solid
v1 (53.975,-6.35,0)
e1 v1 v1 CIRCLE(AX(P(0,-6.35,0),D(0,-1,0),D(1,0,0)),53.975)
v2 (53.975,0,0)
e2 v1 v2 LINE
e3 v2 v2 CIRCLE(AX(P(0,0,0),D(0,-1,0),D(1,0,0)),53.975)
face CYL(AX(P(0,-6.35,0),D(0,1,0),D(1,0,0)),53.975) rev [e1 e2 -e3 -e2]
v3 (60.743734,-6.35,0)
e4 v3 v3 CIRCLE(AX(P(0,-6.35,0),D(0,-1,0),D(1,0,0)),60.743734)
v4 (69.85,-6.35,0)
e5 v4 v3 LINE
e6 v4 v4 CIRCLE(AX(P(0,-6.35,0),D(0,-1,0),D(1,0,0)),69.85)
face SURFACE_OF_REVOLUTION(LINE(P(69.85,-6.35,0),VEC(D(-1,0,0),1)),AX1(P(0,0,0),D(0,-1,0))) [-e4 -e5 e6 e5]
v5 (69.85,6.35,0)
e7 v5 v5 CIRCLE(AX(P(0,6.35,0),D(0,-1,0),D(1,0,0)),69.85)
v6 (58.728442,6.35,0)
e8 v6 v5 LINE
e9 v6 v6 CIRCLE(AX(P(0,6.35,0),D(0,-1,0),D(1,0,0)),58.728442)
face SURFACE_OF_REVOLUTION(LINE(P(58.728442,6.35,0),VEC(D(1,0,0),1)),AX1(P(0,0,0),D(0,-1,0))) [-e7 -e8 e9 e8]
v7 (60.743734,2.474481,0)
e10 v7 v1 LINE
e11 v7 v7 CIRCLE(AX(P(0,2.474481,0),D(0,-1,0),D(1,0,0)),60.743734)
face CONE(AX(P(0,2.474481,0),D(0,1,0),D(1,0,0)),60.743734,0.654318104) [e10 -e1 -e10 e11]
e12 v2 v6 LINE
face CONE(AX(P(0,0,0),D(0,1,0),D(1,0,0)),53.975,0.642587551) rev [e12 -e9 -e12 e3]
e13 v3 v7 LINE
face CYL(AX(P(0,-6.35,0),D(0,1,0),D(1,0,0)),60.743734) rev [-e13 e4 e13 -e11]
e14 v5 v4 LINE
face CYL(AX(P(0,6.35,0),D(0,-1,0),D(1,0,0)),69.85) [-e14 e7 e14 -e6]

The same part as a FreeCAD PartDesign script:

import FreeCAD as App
import Part
import Sketcher

V = App.Vector
Q = App.Units.Quantity

doc = App.newDocument("Part")
body = doc.addObject("PartDesign::Body", "Body")

# Sketch on YZ plane
sketch1 = body.newObject("Sketcher::SketchObject", "Sketch")
sketch1.AttachmentSupport = (doc.getObject("YZ_Plane"), [""])
sketch1.MapMode = "FlatFace"
sketch1.addGeometry([
    Part.LineSegment(V(6, 59, 0), V(6, 70, 0)),  # 0
    Part.LineSegment(V(6, 70, 0), V(-6, 70, 0)),  # 1
    Part.LineSegment(V(-6, 70, 0), V(-6, 61, 0)),  # 2
    Part.LineSegment(V(-6, 61, 0), V(2, 61, 0)),  # 3
    Part.LineSegment(V(2, 61, 0), V(-6, 54, 0)),  # 4
    Part.LineSegment(V(-6, 54, 0), V(0, 54, 0)),  # 5
    Part.LineSegment(V(0, 54, 0), V(6, 59, 0)),  # 6
], False)
sketch1.addConstraint([
    Sketcher.Constraint("Coincident", 0, 2, 1, 1),
    Sketcher.Constraint("Coincident", 1, 2, 2, 1),
    Sketcher.Constraint("Coincident", 2, 2, 3, 1),
    Sketcher.Constraint("Coincident", 3, 2, 4, 1),
    Sketcher.Constraint("Coincident", 4, 2, 5, 1),
    Sketcher.Constraint("Coincident", 5, 2, 6, 1),
    Sketcher.Constraint("Coincident", 6, 2, 0, 1),
    Sketcher.Constraint("Vertical", 0),
    Sketcher.Constraint("Horizontal", 1),
    Sketcher.Constraint("Vertical", 2),
    Sketcher.Constraint("Horizontal", 3),
    Sketcher.Constraint("Horizontal", 5),
    Sketcher.Constraint("PointOnObject", 5, 2, -2),
    Sketcher.Constraint("Vertical", 2, 2, 4, 2),
    Sketcher.Constraint("DistanceX", 1, 2, 1, 1, Q("0.5 in")),
    Sketcher.Constraint("DistanceX", 5, 1, 5, 2, Q("0.25 in")),
    Sketcher.Constraint("DistanceY", -1, 1, 0, 2, Q("2.75 in")),
    Sketcher.Constraint("DistanceY", -1, 1, 4, 2, Q("2.125 in")),
    Sketcher.Constraint("DistanceX", 3, 1, 3, 2, 8.824481),
    Sketcher.Constraint("Distance", 6, 7.932069),
    Sketcher.Constraint("DistanceY", 2, 2, 2, 1, 9.106266),
])

# Sketch on XZ plane
sketch2 = body.newObject("Sketcher::SketchObject", "Sketch001")
sketch2.AttachmentSupport = (doc.getObject("XZ_Plane"), [""])
sketch2.MapMode = "FlatFace"
sketch2.addGeometry(Part.Circle(V(0, 0, 0), V(0, 0, 1), 70), False)
sketch2.addConstraint([
    Sketcher.Constraint("Coincident", 0, 3, -1, 1),
    Sketcher.Constraint("Diameter", 0, Q("5.5 in")),
])
doc.recompute()

additivepipe = body.newObject("PartDesign::AdditivePipe", "AdditivePipe")
additivepipe.Profile = sketch1
additivepipe.Spine = (sketch2, ["Edge1"])

doc.recompute()
